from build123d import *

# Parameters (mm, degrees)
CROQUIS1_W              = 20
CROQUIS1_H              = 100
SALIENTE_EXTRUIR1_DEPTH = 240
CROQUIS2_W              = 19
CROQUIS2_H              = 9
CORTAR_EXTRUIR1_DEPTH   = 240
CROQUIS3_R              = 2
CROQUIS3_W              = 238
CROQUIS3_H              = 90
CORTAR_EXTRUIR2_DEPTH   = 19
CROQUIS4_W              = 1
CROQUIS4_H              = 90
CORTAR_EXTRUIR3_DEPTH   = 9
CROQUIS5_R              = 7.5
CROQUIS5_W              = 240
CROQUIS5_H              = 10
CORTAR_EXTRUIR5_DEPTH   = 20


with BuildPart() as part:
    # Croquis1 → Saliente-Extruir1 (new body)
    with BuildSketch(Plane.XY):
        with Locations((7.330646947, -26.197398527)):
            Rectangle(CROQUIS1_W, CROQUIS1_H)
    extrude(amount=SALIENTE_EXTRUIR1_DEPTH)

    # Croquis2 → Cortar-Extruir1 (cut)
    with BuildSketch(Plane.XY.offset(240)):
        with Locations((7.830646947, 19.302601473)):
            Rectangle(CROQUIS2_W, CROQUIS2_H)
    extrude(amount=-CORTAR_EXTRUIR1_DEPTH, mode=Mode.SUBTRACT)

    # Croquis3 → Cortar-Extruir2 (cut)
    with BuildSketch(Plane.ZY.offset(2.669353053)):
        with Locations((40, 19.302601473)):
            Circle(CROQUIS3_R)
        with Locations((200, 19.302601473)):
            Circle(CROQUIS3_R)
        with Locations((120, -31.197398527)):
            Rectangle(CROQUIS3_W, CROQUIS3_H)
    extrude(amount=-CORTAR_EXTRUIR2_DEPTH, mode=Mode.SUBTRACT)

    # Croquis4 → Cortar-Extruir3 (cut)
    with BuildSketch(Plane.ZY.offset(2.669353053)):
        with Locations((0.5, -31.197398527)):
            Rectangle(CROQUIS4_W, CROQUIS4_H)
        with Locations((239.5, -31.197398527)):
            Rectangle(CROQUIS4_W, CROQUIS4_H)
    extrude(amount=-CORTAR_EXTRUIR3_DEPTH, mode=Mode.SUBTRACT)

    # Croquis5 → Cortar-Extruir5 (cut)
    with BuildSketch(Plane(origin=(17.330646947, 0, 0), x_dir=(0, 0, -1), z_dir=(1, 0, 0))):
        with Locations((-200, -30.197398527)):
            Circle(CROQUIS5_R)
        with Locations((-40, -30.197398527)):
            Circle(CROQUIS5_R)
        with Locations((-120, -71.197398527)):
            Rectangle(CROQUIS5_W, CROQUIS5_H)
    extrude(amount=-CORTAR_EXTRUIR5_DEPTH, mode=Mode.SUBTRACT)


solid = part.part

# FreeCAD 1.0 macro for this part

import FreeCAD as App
import Part
import Sketcher

V = App.Vector


def add_polygon(sketch, points):
    """Adds a closed chain of lines whose ends are joined by coincident constraints."""
    first, n = sketch.GeometryCount, len(points)
    for a, b in zip(points, points[1:] + points[:1]):
        sketch.addGeometry(Part.LineSegment(App.Vector(*a, 0), App.Vector(*b, 0)), False)
    for i in range(n):
        sketch.addConstraint(Sketcher.Constraint("Coincident", first + i, 2, first + (i + 1) % n, 1))

doc = App.newDocument("Part")
body = doc.addObject("PartDesign::Body", "Body")

# Sketch on XY plane
sketch1 = doc.addObject("Sketcher::SketchObject", "Sketch")
body.addObject(sketch1)
sketch1.AttachmentSupport = (doc.XY_Plane, [""])
sketch1.MapMode = "FlatFace"
add_polygon(sketch1, [(-3, 24), (-3, -76), (17, -76), (17, 24)])  # lines 0-3
sketch1.addConstraint([
    Sketcher.Constraint("Vertical", 0),
    Sketcher.Constraint("Horizontal", 1),
    Sketcher.Constraint("Vertical", 2),
    Sketcher.Constraint("Horizontal", 3),
    Sketcher.Constraint("DistanceX", 1, 1, 1, 2, 20.0),
    Sketcher.Constraint("DistanceY", 0, 2, 0, 1, 100.0),
    Sketcher.Constraint("DistanceY", 0, 2, -1, 1, 76.197399),
    Sketcher.Constraint("DistanceX", 0, 2, -1, 1, 2.669353),
])
pad1 = doc.addObject("PartDesign::Pad", "Pad")
body.addObject(pad1)
pad1.Profile = sketch1
pad1.Length = 240

# Sketch on XY plane
sketch2 = doc.addObject("Sketcher::SketchObject", "Sketch001")
body.addObject(sketch2)
sketch2.AttachmentSupport = (doc.XY_Plane, [""])
sketch2.MapMode = "FlatFace"
sketch2.AttachmentOffset = App.Placement(V(0, 0, 240), App.Rotation())
add_polygon(sketch2, [(-2, 24), (-2, 15), (17, 15), (17, 24)])  # lines 0-3
sketch2.addConstraint([
    Sketcher.Constraint("Vertical", 0),
    Sketcher.Constraint("Horizontal", 1),
    Sketcher.Constraint("Vertical", 2),
    Sketcher.Constraint("Horizontal", 3),
    Sketcher.Constraint("DistanceX", 1, 1, 1, 2, 19.0),
    Sketcher.Constraint("DistanceY", 0, 2, 0, 1, 9.0),
    Sketcher.Constraint("DistanceY", -1, 1, 0, 2, 14.802601),
    Sketcher.Constraint("DistanceX", 0, 2, -1, 1, 1.669353),
])
pocket1 = doc.addObject("PartDesign::Pocket", "Pocket")
body.addObject(pocket1)
pocket1.Profile = sketch2
pocket1.Length = 240

# Sketch on YZ plane
sketch3 = doc.addObject("Sketcher::SketchObject", "Sketch002")
body.addObject(sketch3)
sketch3.AttachmentSupport = (doc.YZ_Plane, [""])
sketch3.MapMode = "FlatFace"
sketch3.AttachmentOffset = App.Placement(V(0, 0, -2.669353), App.Rotation())
sketch3.addGeometry(Part.Circle(V(19.3, 40, 0), V(0, 0, 1), 2), False)  # 0
sketch3.addGeometry(Part.Circle(V(19.3, 200, 0), V(0, 0, 1), 2), False)  # 1
add_polygon(sketch3, [(13.8, 1), (-76.2, 1), (-76.2, 239), (13.8, 239)])  # lines 2-5
sketch3.addConstraint([
    Sketcher.Constraint("Horizontal", 2),
    Sketcher.Constraint("Vertical", 3),
    Sketcher.Constraint("Horizontal", 4),
    Sketcher.Constraint("Vertical", 5),
    Sketcher.Constraint("Equal", 0, 1),
    Sketcher.Constraint("Vertical", 0, 3, 1, 3),
    Sketcher.Constraint("Diameter", 0, 4.0),
    Sketcher.Constraint("DistanceX", 2, 2, 2, 1, 90.0),
    Sketcher.Constraint("DistanceY", 3, 1, 3, 2, 238.0),
    Sketcher.Constraint("DistanceY", -1, 1, 0, 3, 40.0),
    Sketcher.Constraint("DistanceY", -1, 1, 1, 3, 200.0),
    Sketcher.Constraint("DistanceY", -1, 1, 2, 2, 1.0),
    Sketcher.Constraint("DistanceX", 2, 2, 0, 3, 95.5),
    Sketcher.Constraint("DistanceX", -1, 1, 0, 3, 19.302601),
])
pocket2 = doc.addObject("PartDesign::Pocket", "Pocket001")
body.addObject(pocket2)
pocket2.Profile = sketch3
pocket2.Length = 19
pocket2.Reversed = True

# Sketch on YZ plane
sketch4 = doc.addObject("Sketcher::SketchObject", "Sketch003")
body.addObject(sketch4)
sketch4.AttachmentSupport = (doc.YZ_Plane, [""])
sketch4.MapMode = "FlatFace"
sketch4.AttachmentOffset = App.Placement(V(0, 0, -2.669353), App.Rotation())
add_polygon(sketch4, [(13.8, 0), (-76.2, 0), (-76.2, 1), (13.8, 1)])  # lines 0-3
add_polygon(sketch4, [(13.8, 239), (-76.2, 239), (-76.2, 240), (13.8, 240)])  # lines 4-7
sketch4.addConstraint([
    Sketcher.Constraint("Horizontal", 0),
    Sketcher.Constraint("Vertical", 1),
    Sketcher.Constraint("Horizontal", 2),
    Sketcher.Constraint("Vertical", 3),
    Sketcher.Constraint("Horizontal", 4),
    Sketcher.Constraint("Vertical", 5),
    Sketcher.Constraint("Horizontal", 6),
    Sketcher.Constraint("Vertical", 7),
    Sketcher.Constraint("PointOnObject", 0, 2, -1),
    Sketcher.Constraint("Vertical", 1, 2, 4, 2),
    Sketcher.Constraint("Vertical", 3, 2, 6, 2),
    Sketcher.Constraint("Equal", 3, 5),
    Sketcher.Constraint("DistanceX", 0, 2, 0, 1, 90.0),
    Sketcher.Constraint("DistanceY", 1, 1, 1, 2, 1.0),
    Sketcher.Constraint("DistanceY", -1, 1, 4, 2, 239.0),
    Sketcher.Constraint("DistanceX", 0, 2, -1, 1, 76.197399),
])
pocket3 = doc.addObject("PartDesign::Pocket", "Pocket002")
body.addObject(pocket3)
pocket3.Profile = sketch4
pocket3.Length = 9
pocket3.Reversed = True

# Sketch on YZ plane
sketch5 = doc.addObject("Sketcher::SketchObject", "Sketch004")
body.addObject(sketch5)
sketch5.AttachmentSupport = (doc.YZ_Plane, [""])
sketch5.MapMode = "FlatFace"
sketch5.AttachmentOffset = App.Placement(V(0, 0, 17.330647), App.Rotation())
sketch5.addGeometry(Part.Circle(V(-30, 200, 0), V(0, 0, 1), 8), False)  # 0
sketch5.addGeometry(Part.Circle(V(-30, 40, 0), V(0, 0, 1), 8), False)  # 1
add_polygon(sketch5, [(-66, 240), (-76, 240), (-76, 0), (-66, 0)])  # lines 2-5
sketch5.addConstraint([
    Sketcher.Constraint("Horizontal", 2),
    Sketcher.Constraint("Vertical", 3),
    Sketcher.Constraint("Horizontal", 4),
    Sketcher.Constraint("Vertical", 5),
    Sketcher.Constraint("Equal", 0, 1),
    Sketcher.Constraint("PointOnObject", 3, 2, -1),
    Sketcher.Constraint("Vertical", 0, 3, 1, 3),
    Sketcher.Constraint("Diameter", 0, 15.0),
    Sketcher.Constraint("DistanceX", 2, 2, 2, 1, 10.0),
    Sketcher.Constraint("DistanceY", 3, 2, 3, 1, 240.0),
    Sketcher.Constraint("DistanceY", -1, 1, 0, 3, 200.0),
    Sketcher.Constraint("DistanceY", -1, 1, 1, 3, 40.0),
    Sketcher.Constraint("DistanceX", 2, 2, 0, 3, 46.0),
    Sketcher.Constraint("DistanceX", 0, 3, -1, 1, 30.197399),
])
pocket4 = doc.addObject("PartDesign::Pocket", "Pocket003")
body.addObject(pocket4)
pocket4.Profile = sketch5
pocket4.Length = 20

doc.recompute()
